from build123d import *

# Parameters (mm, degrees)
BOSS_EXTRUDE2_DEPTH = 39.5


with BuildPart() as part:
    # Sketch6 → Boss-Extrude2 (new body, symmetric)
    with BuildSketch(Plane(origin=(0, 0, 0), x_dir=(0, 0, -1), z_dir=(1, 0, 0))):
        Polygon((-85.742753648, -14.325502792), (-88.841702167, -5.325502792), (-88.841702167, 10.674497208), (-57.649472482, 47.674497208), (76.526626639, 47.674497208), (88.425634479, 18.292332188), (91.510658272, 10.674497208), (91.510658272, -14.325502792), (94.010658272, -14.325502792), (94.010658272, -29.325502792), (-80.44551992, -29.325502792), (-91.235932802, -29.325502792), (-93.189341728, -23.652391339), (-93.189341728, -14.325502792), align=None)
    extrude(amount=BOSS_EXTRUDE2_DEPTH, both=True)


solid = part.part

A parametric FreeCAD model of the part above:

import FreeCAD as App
import Part
import Sketcher

V = App.Vector
Q = App.Units.Quantity

doc = App.newDocument("Part")
params = doc.addObject("Spreadsheet::Sheet", "Params")
for row, (alias, value) in enumerate([
    ("sketch1_width", "15 mm"),
    ("sketch1_width2", "25 mm"),
    ("sketch1_width3", "16 mm"),
    ("sketch1_length", "6 mm"),
    ("sketch1_height", "2.5 mm"),
    ("pad1_length", "79 mm"),
], start=1):
    params.set(f"A{row}", alias)
    params.set(f"B{row}", "=" + value)
    params.setAlias(f"B{row}", alias)

body = doc.addObject("PartDesign::Body", "Body")

sketch1 = body.newObject("Sketcher::SketchObject", "Sketch")
sketch1.AttachmentSupport = (doc.getObject("YZ_Plane"), [""])
sketch1.MapMode = "FlatFace"
sketch1.addGeometry([
    Part.LineSegment(V(-5.325503, 88.841702, 0), V(-14.325503, 85.742754, 0)),
    Part.LineSegment(V(-14.325503, 85.742754, 0), V(-14.325503, 93.189342, 0)),
    Part.LineSegment(V(-14.325503, 93.189342, 0), V(-23.652391, 93.189342, 0)),
    Part.LineSegment(V(-23.652391, 93.189342, 0), V(-29.325503, 91.235933, 0)),
    Part.LineSegment(V(-29.325503, 91.235933, 0), V(-29.325503, -94.010658, 0)),
    Part.LineSegment(V(-29.325503, -94.010658, 0), V(-14.325503, -94.010658, 0)),
    Part.LineSegment(V(-14.325503, -94.010658, 0), V(-14.325503, -91.510658, 0)),
    Part.LineSegment(V(-14.325503, -91.510658, 0), V(10.674497, -91.510658, 0)),
    Part.LineSegment(V(10.674497, -91.510658, 0), V(18.292332, -88.425634, 0)),
    Part.LineSegment(V(18.292332, -88.425634, 0), V(47.674497, -76.526627, 0)),
    Part.LineSegment(V(47.674497, -76.526627, 0), V(47.674497, 57.649472, 0)),
    Part.LineSegment(V(47.674497, 57.649472, 0), V(10.674497, 88.841702, 0)),
    Part.LineSegment(V(10.674497, 88.841702, 0), V(-5.325503, 88.841702, 0)),
], False)
sketch1.addConstraint([
    Sketcher.Constraint("Coincident", 0, 2, 1, 1),
    Sketcher.Constraint("Coincident", 1, 2, 2, 1),
    Sketcher.Constraint("Coincident", 2, 2, 3, 1),
    Sketcher.Constraint("Coincident", 3, 2, 4, 1),
    Sketcher.Constraint("Coincident", 4, 2, 5, 1),
    Sketcher.Constraint("Coincident", 5, 2, 6, 1),
    Sketcher.Constraint("Coincident", 6, 2, 7, 1),
    Sketcher.Constraint("Coincident", 7, 2, 8, 1),
    Sketcher.Constraint("Coincident", 8, 2, 9, 1),
    Sketcher.Constraint("Coincident", 9, 2, 10, 1),
    Sketcher.Constraint("Coincident", 10, 2, 11, 1),
    Sketcher.Constraint("Coincident", 11, 2, 12, 1),
    Sketcher.Constraint("Coincident", 12, 2, 0, 1),
    Sketcher.Constraint("Vertical", 1),
    Sketcher.Constraint("Horizontal", 2),
    Sketcher.Constraint("Vertical", 4),
    Sketcher.Constraint("Horizontal", 5),
    Sketcher.Constraint("Vertical", 6),
    Sketcher.Constraint("Horizontal", 7),
    Sketcher.Constraint("Vertical", 10),
    Sketcher.Constraint("Horizontal", 12),
    Sketcher.Constraint("Parallel", 0, 3),
    Sketcher.Constraint("Parallel", 8, 9),
    Sketcher.Constraint("Vertical", 1, 2, 5, 2),
    Sketcher.Constraint("Vertical", 7, 2, 11, 2),
    Sketcher.Constraint("DistanceX", 5, 1, 5, 2, Q("15 mm")),
    Sketcher.Constraint("DistanceX", 7, 1, 7, 2, Q("25 mm")),
    Sketcher.Constraint("DistanceX", 12, 2, 12, 1, Q("16 mm")),
    Sketcher.Constraint("Angle", 0, Q("-161 deg")),
    Sketcher.Constraint("Distance", 3, Q("6 mm")),
    Sketcher.Constraint("DistanceY", 6, 1, 6, 2, Q("2.5 mm")),
    Sketcher.Constraint("DistanceX", 7, 2, 9, 2, Q("37 mm")),
    Sketcher.Constraint("DistanceY", 4, 2, 2, 2, Q("187.2 mm")),
    Sketcher.Constraint("DistanceY", 10, 1, 10, 2, Q("134.176099 mm")),
    Sketcher.Constraint("DistanceY", 1, 1, 1, 2, Q("7.446588 mm")),
    Sketcher.Constraint("Distance", 11, Q("48.393752 mm")),
    Sketcher.Constraint("DistanceY", -1, 1, 1, 2, Q("93.189342 mm")),
    Sketcher.Constraint("DistanceX", 2, 2, -1, 1, Q("23.652391 mm")),
    Sketcher.Constraint("DistanceY", 8, 2, 0, 2, Q("174.168388 mm")),
])
sketch1.setExpression("Constraints[25]", "Params.sketch1_width")
sketch1.setExpression("Constraints[26]", "Params.sketch1_width2")
sketch1.setExpression("Constraints[27]", "Params.sketch1_width3")
sketch1.setExpression("Constraints[29]", "Params.sketch1_length")
sketch1.setExpression("Constraints[30]", "Params.sketch1_height")
pad1 = body.newObject("PartDesign::Pad", "Pad")
pad1.Profile = sketch1
pad1.setExpression("Length", "Params.pad1_length")
pad1.Midplane = True

doc.recompute()
